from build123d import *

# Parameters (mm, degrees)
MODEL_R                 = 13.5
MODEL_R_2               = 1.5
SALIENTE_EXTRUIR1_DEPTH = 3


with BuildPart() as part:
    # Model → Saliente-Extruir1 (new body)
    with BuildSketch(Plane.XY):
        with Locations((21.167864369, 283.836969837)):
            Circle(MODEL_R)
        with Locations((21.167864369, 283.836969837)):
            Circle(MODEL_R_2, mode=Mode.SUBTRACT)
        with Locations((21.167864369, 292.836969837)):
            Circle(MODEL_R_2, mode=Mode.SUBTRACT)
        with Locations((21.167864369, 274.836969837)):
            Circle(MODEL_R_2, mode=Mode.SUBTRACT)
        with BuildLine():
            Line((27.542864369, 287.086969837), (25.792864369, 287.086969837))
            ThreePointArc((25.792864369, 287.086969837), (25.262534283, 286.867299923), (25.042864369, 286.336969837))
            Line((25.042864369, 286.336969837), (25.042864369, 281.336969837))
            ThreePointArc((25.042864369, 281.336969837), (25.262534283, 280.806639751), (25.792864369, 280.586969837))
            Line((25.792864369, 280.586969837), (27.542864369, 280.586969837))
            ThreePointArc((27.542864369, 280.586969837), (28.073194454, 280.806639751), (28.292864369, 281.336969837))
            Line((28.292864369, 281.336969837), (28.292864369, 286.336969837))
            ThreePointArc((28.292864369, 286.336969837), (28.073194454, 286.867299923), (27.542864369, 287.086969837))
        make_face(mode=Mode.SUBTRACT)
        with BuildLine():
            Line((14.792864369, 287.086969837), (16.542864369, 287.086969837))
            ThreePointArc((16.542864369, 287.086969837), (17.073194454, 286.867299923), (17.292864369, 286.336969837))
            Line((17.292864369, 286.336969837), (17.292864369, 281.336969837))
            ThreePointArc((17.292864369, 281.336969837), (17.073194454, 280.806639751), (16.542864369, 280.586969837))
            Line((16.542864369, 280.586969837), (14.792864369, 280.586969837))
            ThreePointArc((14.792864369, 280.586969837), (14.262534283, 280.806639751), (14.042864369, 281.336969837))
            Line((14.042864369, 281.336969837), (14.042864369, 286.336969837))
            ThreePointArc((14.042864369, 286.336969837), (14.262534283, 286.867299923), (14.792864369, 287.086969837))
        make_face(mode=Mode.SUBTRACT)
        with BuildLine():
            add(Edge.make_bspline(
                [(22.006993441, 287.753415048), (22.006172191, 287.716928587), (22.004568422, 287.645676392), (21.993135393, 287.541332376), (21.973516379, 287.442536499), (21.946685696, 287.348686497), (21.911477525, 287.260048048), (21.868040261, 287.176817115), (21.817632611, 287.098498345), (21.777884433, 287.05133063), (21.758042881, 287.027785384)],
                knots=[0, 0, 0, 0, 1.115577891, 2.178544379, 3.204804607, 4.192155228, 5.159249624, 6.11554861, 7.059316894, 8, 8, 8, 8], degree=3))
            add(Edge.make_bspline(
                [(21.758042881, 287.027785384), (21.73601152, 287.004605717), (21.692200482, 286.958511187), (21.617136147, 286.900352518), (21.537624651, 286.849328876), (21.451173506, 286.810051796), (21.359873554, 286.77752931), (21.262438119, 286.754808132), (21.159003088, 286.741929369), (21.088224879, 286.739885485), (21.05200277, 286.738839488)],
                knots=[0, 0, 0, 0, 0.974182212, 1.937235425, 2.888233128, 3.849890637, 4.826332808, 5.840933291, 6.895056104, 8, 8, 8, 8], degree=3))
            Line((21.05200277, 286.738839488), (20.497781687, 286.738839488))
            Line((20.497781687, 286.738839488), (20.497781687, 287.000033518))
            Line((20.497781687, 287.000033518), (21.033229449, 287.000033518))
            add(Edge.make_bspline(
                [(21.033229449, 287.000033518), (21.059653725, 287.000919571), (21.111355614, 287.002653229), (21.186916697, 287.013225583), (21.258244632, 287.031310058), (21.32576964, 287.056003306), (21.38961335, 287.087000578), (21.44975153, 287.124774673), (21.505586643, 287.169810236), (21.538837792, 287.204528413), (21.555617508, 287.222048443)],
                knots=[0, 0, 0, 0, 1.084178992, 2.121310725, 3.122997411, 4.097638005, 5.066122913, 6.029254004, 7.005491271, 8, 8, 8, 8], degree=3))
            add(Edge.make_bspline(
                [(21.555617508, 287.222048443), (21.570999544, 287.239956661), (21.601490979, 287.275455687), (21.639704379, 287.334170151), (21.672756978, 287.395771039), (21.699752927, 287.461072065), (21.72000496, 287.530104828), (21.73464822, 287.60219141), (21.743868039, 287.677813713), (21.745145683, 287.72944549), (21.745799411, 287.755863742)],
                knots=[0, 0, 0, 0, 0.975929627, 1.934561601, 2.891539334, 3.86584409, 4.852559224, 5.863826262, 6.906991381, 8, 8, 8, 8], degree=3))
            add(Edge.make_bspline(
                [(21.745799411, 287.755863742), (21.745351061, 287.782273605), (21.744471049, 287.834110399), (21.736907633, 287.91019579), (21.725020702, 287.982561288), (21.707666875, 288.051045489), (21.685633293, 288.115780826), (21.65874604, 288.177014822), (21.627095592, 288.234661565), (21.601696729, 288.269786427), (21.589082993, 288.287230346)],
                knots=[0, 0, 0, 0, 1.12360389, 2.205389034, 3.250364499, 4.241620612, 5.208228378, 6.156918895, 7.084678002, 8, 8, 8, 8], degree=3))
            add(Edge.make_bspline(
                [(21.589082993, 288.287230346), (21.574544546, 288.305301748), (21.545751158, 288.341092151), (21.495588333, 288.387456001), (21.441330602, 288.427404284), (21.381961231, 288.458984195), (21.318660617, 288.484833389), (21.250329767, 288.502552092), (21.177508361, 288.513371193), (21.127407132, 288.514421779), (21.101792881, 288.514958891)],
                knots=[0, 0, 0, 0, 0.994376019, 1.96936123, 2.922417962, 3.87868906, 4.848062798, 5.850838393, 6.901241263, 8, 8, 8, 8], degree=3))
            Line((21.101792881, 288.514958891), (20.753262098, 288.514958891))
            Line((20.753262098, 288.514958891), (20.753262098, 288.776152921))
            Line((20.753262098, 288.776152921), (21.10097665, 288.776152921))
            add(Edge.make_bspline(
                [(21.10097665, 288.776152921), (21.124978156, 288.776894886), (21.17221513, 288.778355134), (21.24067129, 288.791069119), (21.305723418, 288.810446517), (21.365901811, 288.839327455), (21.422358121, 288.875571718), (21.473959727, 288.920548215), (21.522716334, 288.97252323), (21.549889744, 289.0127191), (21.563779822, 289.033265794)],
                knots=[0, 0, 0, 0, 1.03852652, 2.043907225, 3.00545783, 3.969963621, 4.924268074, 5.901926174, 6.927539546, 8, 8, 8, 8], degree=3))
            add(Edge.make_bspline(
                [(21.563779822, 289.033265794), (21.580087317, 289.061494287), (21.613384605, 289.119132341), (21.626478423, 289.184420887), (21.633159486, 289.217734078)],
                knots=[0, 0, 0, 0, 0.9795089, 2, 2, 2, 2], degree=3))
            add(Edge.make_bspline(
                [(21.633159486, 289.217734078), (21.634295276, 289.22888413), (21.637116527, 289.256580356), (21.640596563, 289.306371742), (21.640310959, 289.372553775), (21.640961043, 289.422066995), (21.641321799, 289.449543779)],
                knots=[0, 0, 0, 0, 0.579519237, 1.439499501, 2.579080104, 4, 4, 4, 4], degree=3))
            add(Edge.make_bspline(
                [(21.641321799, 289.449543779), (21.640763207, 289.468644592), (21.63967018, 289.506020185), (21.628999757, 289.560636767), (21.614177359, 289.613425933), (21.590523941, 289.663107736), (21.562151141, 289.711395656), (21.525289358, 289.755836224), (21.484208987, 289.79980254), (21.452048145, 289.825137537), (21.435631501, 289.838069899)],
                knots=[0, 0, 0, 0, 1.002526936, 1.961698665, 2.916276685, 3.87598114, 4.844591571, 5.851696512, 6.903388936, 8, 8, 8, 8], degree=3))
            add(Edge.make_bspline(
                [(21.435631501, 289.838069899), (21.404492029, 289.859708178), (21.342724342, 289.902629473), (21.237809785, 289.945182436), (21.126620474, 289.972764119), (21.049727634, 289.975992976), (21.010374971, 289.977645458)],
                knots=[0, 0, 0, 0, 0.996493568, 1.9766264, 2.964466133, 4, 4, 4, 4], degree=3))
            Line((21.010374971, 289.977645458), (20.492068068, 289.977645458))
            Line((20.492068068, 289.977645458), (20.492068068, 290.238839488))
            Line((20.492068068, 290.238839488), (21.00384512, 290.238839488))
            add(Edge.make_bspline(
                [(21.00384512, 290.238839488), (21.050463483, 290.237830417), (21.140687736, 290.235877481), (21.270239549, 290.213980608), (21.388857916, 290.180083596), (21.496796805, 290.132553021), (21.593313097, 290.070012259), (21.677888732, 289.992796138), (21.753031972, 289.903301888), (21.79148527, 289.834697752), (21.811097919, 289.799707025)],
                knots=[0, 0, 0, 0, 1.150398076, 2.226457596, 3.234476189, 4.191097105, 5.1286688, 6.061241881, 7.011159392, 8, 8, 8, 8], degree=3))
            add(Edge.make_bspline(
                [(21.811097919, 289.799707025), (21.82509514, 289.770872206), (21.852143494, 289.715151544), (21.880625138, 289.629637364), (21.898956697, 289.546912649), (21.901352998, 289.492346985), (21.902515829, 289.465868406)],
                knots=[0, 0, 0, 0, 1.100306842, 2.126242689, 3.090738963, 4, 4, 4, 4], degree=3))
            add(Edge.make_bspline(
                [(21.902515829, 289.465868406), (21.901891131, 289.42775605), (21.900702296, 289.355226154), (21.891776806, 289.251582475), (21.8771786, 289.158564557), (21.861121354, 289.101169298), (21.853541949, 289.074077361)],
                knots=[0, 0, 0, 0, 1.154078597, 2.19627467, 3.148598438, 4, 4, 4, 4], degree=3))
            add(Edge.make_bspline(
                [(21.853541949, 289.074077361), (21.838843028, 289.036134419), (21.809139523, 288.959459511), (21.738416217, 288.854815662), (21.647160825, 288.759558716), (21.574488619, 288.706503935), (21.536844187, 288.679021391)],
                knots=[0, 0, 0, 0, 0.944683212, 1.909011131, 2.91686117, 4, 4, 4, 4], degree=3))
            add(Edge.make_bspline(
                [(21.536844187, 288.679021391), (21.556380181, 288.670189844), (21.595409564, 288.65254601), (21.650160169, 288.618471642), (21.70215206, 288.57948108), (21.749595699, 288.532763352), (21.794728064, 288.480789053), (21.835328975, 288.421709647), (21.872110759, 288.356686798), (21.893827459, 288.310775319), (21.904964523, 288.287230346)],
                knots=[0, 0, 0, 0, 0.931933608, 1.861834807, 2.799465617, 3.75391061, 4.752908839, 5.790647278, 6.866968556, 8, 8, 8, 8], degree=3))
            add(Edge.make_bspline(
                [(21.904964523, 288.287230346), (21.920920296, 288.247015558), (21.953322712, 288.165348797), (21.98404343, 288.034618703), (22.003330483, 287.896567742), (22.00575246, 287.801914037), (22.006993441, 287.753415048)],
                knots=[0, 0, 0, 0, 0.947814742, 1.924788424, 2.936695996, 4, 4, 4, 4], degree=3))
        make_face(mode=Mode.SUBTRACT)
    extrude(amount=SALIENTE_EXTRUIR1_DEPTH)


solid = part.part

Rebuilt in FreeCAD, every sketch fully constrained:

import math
import FreeCAD as App
import Part
import Sketcher
from FreeCAD import Vector
Q = App.Units.Quantity

doc = App.newDocument("Part")
params = doc.addObject("Spreadsheet::Sheet", "Params")
for row, (alias, value) in enumerate([
    ("sketch1_diameter", "27 mm"),
    ("sketch1_diameter2", "3 mm"),
    ("sketch1_height", "5 mm"),
    ("sketch1_radius", "0.75 mm"),
    ("sketch1_width", "1.75 mm"),
    ("pad1_length", "3 mm"),
], start=1):
    params.set(f"A{row}", alias)
    params.set(f"B{row}", "=" + value)
    params.setAlias(f"B{row}", alias)

body = doc.addObject("PartDesign::Body", "Body")

sketch1 = body.newObject("Sketcher::SketchObject", "Sketch")
sketch1.AttachmentSupport = (doc.getObject("XY_Plane"), [""])
sketch1.MapMode = "FlatFace"
sketch1.addGeometry([
    Part.Circle(Vector(21.167864, 283.83697, 0), Vector(0, 0, 1), 13.5),
    Part.Circle(Vector(21.167864, 274.83697, 0), Vector(0, 0, 1), 1.5),
    Part.ArcOfCircle(Part.Circle(Vector(14.792864, 286.33697, 0), Vector(0, 0, 1), 0.75), math.radians(90), math.radians(180)),
    Part.LineSegment(Vector(14.792864, 287.08697, 0), Vector(16.542864, 287.08697, 0)),
    Part.ArcOfCircle(Part.Circle(Vector(16.542864, 286.33697, 0), Vector(0, 0, 1), 0.75), math.radians(0), math.radians(90)),
    Part.LineSegment(Vector(17.292864, 286.33697, 0), Vector(17.292864, 281.33697, 0)),
    Part.ArcOfCircle(Part.Circle(Vector(16.542864, 281.33697, 0), Vector(0, 0, 1), 0.75), math.radians(-90), math.radians(0)),
    Part.LineSegment(Vector(16.542864, 280.58697, 0), Vector(14.792864, 280.58697, 0)),
    Part.ArcOfCircle(Part.Circle(Vector(14.792864, 281.33697, 0), Vector(0, 0, 1), 0.75), math.radians(180), math.radians(270)),
    Part.LineSegment(Vector(14.042864, 281.33697, 0), Vector(14.042864, 286.33697, 0)),
    Part.LineSegment(Vector(25.792864, 287.08697, 0), Vector(27.542864, 287.08697, 0)),
    Part.ArcOfCircle(Part.Circle(Vector(27.542864, 286.33697, 0), Vector(0, 0, 1), 0.75), math.radians(0), math.radians(90)),
    Part.LineSegment(Vector(28.292864, 286.33697, 0), Vector(28.292864, 281.33697, 0)),
    Part.ArcOfCircle(Part.Circle(Vector(27.542864, 281.33697, 0), Vector(0, 0, 1), 0.75), math.radians(-90), math.radians(0)),
    Part.LineSegment(Vector(27.542864, 280.58697, 0), Vector(25.792864, 280.58697, 0)),
    Part.ArcOfCircle(Part.Circle(Vector(25.792864, 281.33697, 0), Vector(0, 0, 1), 0.75), math.radians(180), math.radians(270)),
    Part.LineSegment(Vector(25.042864, 281.33697, 0), Vector(25.042864, 286.33697, 0)),
    Part.ArcOfCircle(Part.Circle(Vector(25.792864, 286.33697, 0), Vector(0, 0, 1), 0.75), math.radians(90), math.radians(180)),
    Part.Circle(Vector(21.167864, 283.83697, 0), Vector(0, 0, 1), 1.5),
    Part.Circle(Vector(21.167864, 292.83697, 0), Vector(0, 0, 1), 1.5),
    Part.BSplineCurve([Vector(21.904965, 288.28723, 0), Vector(21.92092, 288.247016, 0), Vector(21.953323, 288.165349, 0), Vector(21.984043, 288.034619, 0), Vector(22.00333, 287.896568, 0), Vector(22.005752, 287.801914, 0), Vector(22.006993, 287.753415, 0)], [4, 1, 1, 1, 4], [0, 0.947814742, 1.924788424, 2.936695996, 4], False, 3, [1, 1, 1, 1, 1, 1, 1], False),
    Part.BSplineCurve([Vector(22.006993, 287.753415, 0), Vector(22.006172, 287.716929, 0), Vector(22.004568, 287.645676, 0), Vector(21.993135, 287.541332, 0), Vector(21.973516, 287.442536, 0), Vector(21.946686, 287.348686, 0), Vector(21.911478, 287.260048, 0), Vector(21.86804, 287.176817, 0), Vector(21.817633, 287.098498, 0), Vector(21.777884, 287.051331, 0), Vector(21.758043, 287.027785, 0)], [4, 1, 1, 1, 1, 1, 1, 1, 4], [0, 1.115577891, 2.178544379, 3.204804607, 4.192155228, 5.159249624, 6.11554861, 7.059316894, 8], False, 3, [1, 1, 1, 1, 1, 1, 1, 1, 1, 1, 1], False),
    Part.BSplineCurve([Vector(21.758043, 287.027785, 0), Vector(21.736012, 287.004606, 0), Vector(21.6922, 286.958511, 0), Vector(21.617136, 286.900353, 0), Vector(21.537625, 286.849329, 0), Vector(21.451174, 286.810052, 0), Vector(21.359874, 286.777529, 0), Vector(21.262438, 286.754808, 0), Vector(21.159003, 286.741929, 0), Vector(21.088225, 286.739885, 0), Vector(21.052003, 286.738839, 0)], [4, 1, 1, 1, 1, 1, 1, 1, 4], [0, 0.974182212, 1.937235425, 2.888233128, 3.849890637, 4.826332808, 5.840933291, 6.895056104, 8], False, 3, [1, 1, 1, 1, 1, 1, 1, 1, 1, 1, 1], False),
    Part.LineSegment(Vector(21.052003, 286.738839, 0), Vector(20.497782, 286.738839, 0)),
    Part.LineSegment(Vector(20.497782, 286.738839, 0), Vector(20.497782, 287.000034, 0)),
    Part.LineSegment(Vector(20.497782, 287.000034, 0), Vector(21.033229, 287.000034, 0)),
    Part.BSplineCurve([Vector(21.033229, 287.000034, 0), Vector(21.059654, 287.00092, 0), Vector(21.111356, 287.002653, 0), Vector(21.186917, 287.013226, 0), Vector(21.258245, 287.03131, 0), Vector(21.32577, 287.056003, 0), Vector(21.389613, 287.087001, 0), Vector(21.449752, 287.124775, 0), Vector(21.505587, 287.16981, 0), Vector(21.538838, 287.204528, 0), Vector(21.555618, 287.222048, 0)], [4, 1, 1, 1, 1, 1, 1, 1, 4], [0, 1.084178992, 2.121310725, 3.122997411, 4.097638005, 5.066122913, 6.029254004, 7.005491271, 8], False, 3, [1, 1, 1, 1, 1, 1, 1, 1, 1, 1, 1], False),
    Part.BSplineCurve([Vector(21.555618, 287.222048, 0), Vector(21.571, 287.239957, 0), Vector(21.601491, 287.275456, 0), Vector(21.639704, 287.33417, 0), Vector(21.672757, 287.395771, 0), Vector(21.699753, 287.461072, 0), Vector(21.720005, 287.530105, 0), Vector(21.734648, 287.602191, 0), Vector(21.743868, 287.677814, 0), Vector(21.745146, 287.729445, 0), Vector(21.745799, 287.755864, 0)], [4, 1, 1, 1, 1, 1, 1, 1, 4], [0, 0.975929627, 1.934561601, 2.891539334, 3.86584409, 4.852559224, 5.863826262, 6.906991381, 8], False, 3, [1, 1, 1, 1, 1, 1, 1, 1, 1, 1, 1], False),
    Part.BSplineCurve([Vector(21.745799, 287.755864, 0), Vector(21.745351, 287.782274, 0), Vector(21.744471, 287.83411, 0), Vector(21.736908, 287.910196, 0), Vector(21.725021, 287.982561, 0), Vector(21.707667, 288.051045, 0), Vector(21.685633, 288.115781, 0), Vector(21.658746, 288.177015, 0), Vector(21.627096, 288.234662, 0), Vector(21.601697, 288.269786, 0), Vector(21.589083, 288.28723, 0)], [4, 1, 1, 1, 1, 1, 1, 1, 4], [0, 1.12360389, 2.205389034, 3.250364499, 4.241620612, 5.208228378, 6.156918895, 7.084678002, 8], False, 3, [1, 1, 1, 1, 1, 1, 1, 1, 1, 1, 1], False),
    Part.BSplineCurve([Vector(21.589083, 288.28723, 0), Vector(21.574545, 288.305302, 0), Vector(21.545751, 288.341092, 0), Vector(21.495588, 288.387456, 0), Vector(21.441331, 288.427404, 0), Vector(21.381961, 288.458984, 0), Vector(21.318661, 288.484833, 0), Vector(21.25033, 288.502552, 0), Vector(21.177508, 288.513371, 0), Vector(21.127407, 288.514422, 0), Vector(21.101793, 288.514959, 0)], [4, 1, 1, 1, 1, 1, 1, 1, 4], [0, 0.994376019, 1.96936123, 2.922417962, 3.87868906, 4.848062798, 5.850838393, 6.901241263, 8], False, 3, [1, 1, 1, 1, 1, 1, 1, 1, 1, 1, 1], False),
    Part.LineSegment(Vector(21.101793, 288.514959, 0), Vector(20.753262, 288.514959, 0)),
    Part.LineSegment(Vector(20.753262, 288.514959, 0), Vector(20.753262, 288.776153, 0)),
    Part.LineSegment(Vector(20.753262, 288.776153, 0), Vector(21.100977, 288.776153, 0)),
    Part.BSplineCurve([Vector(21.100977, 288.776153, 0), Vector(21.124978, 288.776895, 0), Vector(21.172215, 288.778355, 0), Vector(21.240671, 288.791069, 0), Vector(21.305723, 288.810447, 0), Vector(21.365902, 288.839327, 0), Vector(21.422358, 288.875572, 0), Vector(21.47396, 288.920548, 0), Vector(21.522716, 288.972523, 0), Vector(21.54989, 289.012719, 0), Vector(21.56378, 289.033266, 0)], [4, 1, 1, 1, 1, 1, 1, 1, 4], [0, 1.03852652, 2.043907225, 3.00545783, 3.969963621, 4.924268074, 5.901926174, 6.927539546, 8], False, 3, [1, 1, 1, 1, 1, 1, 1, 1, 1, 1, 1], False),
    Part.BSplineCurve([Vector(21.56378, 289.033266, 0), Vector(21.580087, 289.061494, 0), Vector(21.613385, 289.119132, 0), Vector(21.626478, 289.184421, 0), Vector(21.633159, 289.217734, 0)], [4, 1, 4], [0, 0.9795089, 2], False, 3, [1, 1, 1, 1, 1], False),
    Part.BSplineCurve([Vector(21.633159, 289.217734, 0), Vector(21.634295, 289.228884, 0), Vector(21.637117, 289.25658, 0), Vector(21.640597, 289.306372, 0), Vector(21.640311, 289.372554, 0), Vector(21.640961, 289.422067, 0), Vector(21.641322, 289.449544, 0)], [4, 1, 1, 1, 4], [0, 0.579519237, 1.439499501, 2.579080104, 4], False, 3, [1, 1, 1, 1, 1, 1, 1], False),
    Part.BSplineCurve([Vector(21.641322, 289.449544, 0), Vector(21.640763, 289.468645, 0), Vector(21.63967, 289.50602, 0), Vector(21.629, 289.560637, 0), Vector(21.614177, 289.613426, 0), Vector(21.590524, 289.663108, 0), Vector(21.562151, 289.711396, 0), Vector(21.525289, 289.755836, 0), Vector(21.484209, 289.799803, 0), Vector(21.452048, 289.825138, 0), Vector(21.435632, 289.83807, 0)], [4, 1, 1, 1, 1, 1, 1, 1, 4], [0, 1.002526936, 1.961698665, 2.916276685, 3.87598114, 4.844591571, 5.851696512, 6.903388936, 8], False, 3, [1, 1, 1, 1, 1, 1, 1, 1, 1, 1, 1], False),
    Part.BSplineCurve([Vector(21.435632, 289.83807, 0), Vector(21.404492, 289.859708, 0), Vector(21.342724, 289.902629, 0), Vector(21.23781, 289.945182, 0), Vector(21.12662, 289.972764, 0), Vector(21.049728, 289.975993, 0), Vector(21.010375, 289.977645, 0)], [4, 1, 1, 1, 4], [0, 0.996493568, 1.9766264, 2.964466133, 4], False, 3, [1, 1, 1, 1, 1, 1, 1], False),
    Part.LineSegment(Vector(21.010375, 289.977645, 0), Vector(20.492068, 289.977645, 0)),
    Part.LineSegment(Vector(20.492068, 289.977645, 0), Vector(20.492068, 290.238839, 0)),
    Part.LineSegment(Vector(20.492068, 290.238839, 0), Vector(21.003845, 290.238839, 0)),
    Part.BSplineCurve([Vector(21.003845, 290.238839, 0), Vector(21.050463, 290.23783, 0), Vector(21.140688, 290.235877, 0), Vector(21.27024, 290.213981, 0), Vector(21.388858, 290.180084, 0), Vector(21.496797, 290.132553, 0), Vector(21.593313, 290.070012, 0), Vector(21.677889, 289.992796, 0), Vector(21.753032, 289.903302, 0), Vector(21.791485, 289.834698, 0), Vector(21.811098, 289.799707, 0)], [4, 1, 1, 1, 1, 1, 1, 1, 4], [0, 1.150398076, 2.226457596, 3.234476189, 4.191097105, 5.1286688, 6.061241881, 7.011159392, 8], False, 3, [1, 1, 1, 1, 1, 1, 1, 1, 1, 1, 1], False),
    Part.BSplineCurve([Vector(21.811098, 289.799707, 0), Vector(21.825095, 289.770872, 0), Vector(21.852143, 289.715152, 0), Vector(21.880625, 289.629637, 0), Vector(21.898957, 289.546913, 0), Vector(21.901353, 289.492347, 0), Vector(21.902516, 289.465868, 0)], [4, 1, 1, 1, 4], [0, 1.100306842, 2.126242689, 3.090738963, 4], False, 3, [1, 1, 1, 1, 1, 1, 1], False),
    Part.BSplineCurve([Vector(21.902516, 289.465868, 0), Vector(21.901891, 289.427756, 0), Vector(21.900702, 289.355226, 0), Vector(21.891777, 289.251582, 0), Vector(21.877179, 289.158565, 0), Vector(21.861121, 289.101169, 0), Vector(21.853542, 289.074077, 0)], [4, 1, 1, 1, 4], [0, 1.154078597, 2.19627467, 3.148598438, 4], False, 3, [1, 1, 1, 1, 1, 1, 1], False),
    Part.BSplineCurve([Vector(21.853542, 289.074077, 0), Vector(21.838843, 289.036134, 0), Vector(21.80914, 288.95946, 0), Vector(21.738416, 288.854816, 0), Vector(21.647161, 288.759559, 0), Vector(21.574489, 288.706504, 0), Vector(21.536844, 288.679021, 0)], [4, 1, 1, 1, 4], [0, 0.944683212, 1.909011131, 2.91686117, 4], False, 3, [1, 1, 1, 1, 1, 1, 1], False),
    Part.BSplineCurve([Vector(21.536844, 288.679021, 0), Vector(21.55638, 288.67019, 0), Vector(21.59541, 288.652546, 0), Vector(21.65016, 288.618472, 0), Vector(21.702152, 288.579481, 0), Vector(21.749596, 288.532763, 0), Vector(21.794728, 288.480789, 0), Vector(21.835329, 288.42171, 0), Vector(21.872111, 288.356687, 0), Vector(21.893827, 288.310775, 0), Vector(21.904965, 288.28723, 0)], [4, 1, 1, 1, 1, 1, 1, 1, 4], [0, 0.931933608, 1.861834807, 2.799465617, 3.75391061, 4.752908839, 5.790647278, 6.866968556, 8], False, 3, [1, 1, 1, 1, 1, 1, 1, 1, 1, 1, 1], False),
], False)
sketch1.addConstraint([
    Sketcher.Constraint("Block", 20),
    Sketcher.Constraint("Block", 21),
    Sketcher.Constraint("Block", 22),
    Sketcher.Constraint("Block", 26),
    Sketcher.Constraint("Block", 27),
    Sketcher.Constraint("Block", 28),
    Sketcher.Constraint("Block", 29),
    Sketcher.Constraint("Block", 33),
    Sketcher.Constraint("Block", 34),
    Sketcher.Constraint("Block", 35),
    Sketcher.Constraint("Block", 36),
    Sketcher.Constraint("Block", 37),
    Sketcher.Constraint("Block", 41),
    Sketcher.Constraint("Block", 42),
    Sketcher.Constraint("Block", 43),
    Sketcher.Constraint("Block", 44),
    Sketcher.Constraint("Block", 45),
    Sketcher.Constraint("Tangent", 2, 1, 3, 1),
    Sketcher.Constraint("Tangent", 3, 2, 4, 2),
    Sketcher.Constraint("Tangent", 4, 1, 5, 1),
    Sketcher.Constraint("Tangent", 5, 2, 6, 2),
    Sketcher.Constraint("Tangent", 6, 1, 7, 1),
    Sketcher.Constraint("Tangent", 7, 2, 8, 2),
    Sketcher.Constraint("Tangent", 8, 1, 9, 1),
    Sketcher.Constraint("Tangent", 9, 2, 2, 2),
    Sketcher.Constraint("Tangent", 10, 2, 11, 2),
    Sketcher.Constraint("Tangent", 11, 1, 12, 1),
    Sketcher.Constraint("Tangent", 12, 2, 13, 2),
    Sketcher.Constraint("Tangent", 13, 1, 14, 1),
    Sketcher.Constraint("Tangent", 14, 2, 15, 2),
    Sketcher.Constraint("Tangent", 15, 1, 16, 1),
    Sketcher.Constraint("Tangent", 16, 2, 17, 2),
    Sketcher.Constraint("Tangent", 17, 1, 10, 1),
    Sketcher.Constraint("Coincident", 22, 2, 23, 1),
    Sketcher.Constraint("Coincident", 23, 2, 24, 1),
    Sketcher.Constraint("Coincident", 24, 2, 25, 1),
    Sketcher.Constraint("Coincident", 25, 2, 26, 1),
    Sketcher.Constraint("Coincident", 29, 2, 30, 1),
    Sketcher.Constraint("Coincident", 30, 2, 31, 1),
    Sketcher.Constraint("Coincident", 31, 2, 32, 1),
    Sketcher.Constraint("Coincident", 32, 2, 33, 1),
    Sketcher.Constraint("Coincident", 37, 2, 38, 1),
    Sketcher.Constraint("Coincident", 38, 2, 39, 1),
    Sketcher.Constraint("Coincident", 39, 2, 40, 1),
    Sketcher.Constraint("Coincident", 40, 2, 41, 1),
    Sketcher.Constraint("Horizontal", 3),
    Sketcher.Constraint("Vertical", 5),
    Sketcher.Constraint("Horizontal", 7),
    Sketcher.Constraint("Vertical", 9),
    Sketcher.Constraint("Horizontal", 10),
    Sketcher.Constraint("Vertical", 12),
    Sketcher.Constraint("Horizontal", 14),
    Sketcher.Constraint("Vertical", 16),
    Sketcher.Constraint("Horizontal", 23),
    Sketcher.Constraint("Vertical", 24),
    Sketcher.Constraint("Horizontal", 25),
    Sketcher.Constraint("Horizontal", 30),
    Sketcher.Constraint("Vertical", 31),
    Sketcher.Constraint("Horizontal", 32),
    Sketcher.Constraint("Horizontal", 38),
    Sketcher.Constraint("Vertical", 39),
    Sketcher.Constraint("Horizontal", 40),
    Sketcher.Constraint("Coincident", 18, 3, 0, 3),
    Sketcher.Constraint("Equal", 2, 4),
    Sketcher.Constraint("Equal", 4, 6),
    Sketcher.Constraint("Equal", 6, 8),
    Sketcher.Constraint("Equal", 8, 11),
    Sketcher.Constraint("Equal", 11, 13),
    Sketcher.Constraint("Equal", 13, 15),
    Sketcher.Constraint("Equal", 15, 17),
    Sketcher.Constraint("Equal", 1, 18),
    Sketcher.Constraint("Equal", 18, 19),
    Sketcher.Constraint("Horizontal", 4, 3, 11, 3),
    Sketcher.Constraint("Horizontal", 8, 3, 13, 3),
    Sketcher.Constraint("Vertical", 0, 3, 1, 3),
    Sketcher.Constraint("Vertical", 18, 3, 19, 3),
    Sketcher.Constraint("Equal", 7, 10),
    Sketcher.Constraint("Diameter", 0, Q("27 mm")),
    Sketcher.Constraint("Diameter", 1, Q("3 mm")),
    Sketcher.Constraint("DistanceY", 5, 2, 5, 1, Q("5 mm")),
    Sketcher.Constraint("Radius", 2, Q("0.75 mm")),
    Sketcher.Constraint("DistanceY", 1, 3, 0, 3, Q("9 mm")),
    Sketcher.Constraint("DistanceX", 4, 3, 11, 3, Q("11 mm")),
    Sketcher.Constraint("DistanceY", 0, 3, 19, 3, Q("9 mm")),
    Sketcher.Constraint("DistanceX", 3, 1, 3, 2, Q("1.75 mm")),
    Sketcher.Constraint("DistanceY", 0, 3, 2, 3, Q("2.5 mm")),
    Sketcher.Constraint("DistanceX", 2, 3, 0, 3, Q("6.375 mm")),
    Sketcher.Constraint("DistanceX", 23, 2, 23, 1, Q("0.554221 mm")),
    Sketcher.Constraint("DistanceX", 30, 2, 30, 1, Q("0.348531 mm")),
    Sketcher.Constraint("DistanceX", 38, 2, 38, 1, Q("0.518307 mm")),
    Sketcher.Constraint("DistanceY", -1, 1, 0, 3, Q("283.83697 mm")),
    Sketcher.Constraint("DistanceX", -1, 1, 0, 3, Q("21.167864 mm")),
])
sketch1.setExpression("Constraints[77]", "Params.sketch1_diameter")
sketch1.setExpression("Constraints[78]", "Params.sketch1_diameter2")
sketch1.setExpression("Constraints[79]", "Params.sketch1_height")
sketch1.setExpression("Constraints[80]", "Params.sketch1_radius")
sketch1.setExpression("Constraints[84]", "Params.sketch1_width")
pad1 = body.newObject("PartDesign::Pad", "Pad")
pad1.Profile = sketch1
pad1.setExpression("Length", "Params.pad1_length")

doc.recompute()
